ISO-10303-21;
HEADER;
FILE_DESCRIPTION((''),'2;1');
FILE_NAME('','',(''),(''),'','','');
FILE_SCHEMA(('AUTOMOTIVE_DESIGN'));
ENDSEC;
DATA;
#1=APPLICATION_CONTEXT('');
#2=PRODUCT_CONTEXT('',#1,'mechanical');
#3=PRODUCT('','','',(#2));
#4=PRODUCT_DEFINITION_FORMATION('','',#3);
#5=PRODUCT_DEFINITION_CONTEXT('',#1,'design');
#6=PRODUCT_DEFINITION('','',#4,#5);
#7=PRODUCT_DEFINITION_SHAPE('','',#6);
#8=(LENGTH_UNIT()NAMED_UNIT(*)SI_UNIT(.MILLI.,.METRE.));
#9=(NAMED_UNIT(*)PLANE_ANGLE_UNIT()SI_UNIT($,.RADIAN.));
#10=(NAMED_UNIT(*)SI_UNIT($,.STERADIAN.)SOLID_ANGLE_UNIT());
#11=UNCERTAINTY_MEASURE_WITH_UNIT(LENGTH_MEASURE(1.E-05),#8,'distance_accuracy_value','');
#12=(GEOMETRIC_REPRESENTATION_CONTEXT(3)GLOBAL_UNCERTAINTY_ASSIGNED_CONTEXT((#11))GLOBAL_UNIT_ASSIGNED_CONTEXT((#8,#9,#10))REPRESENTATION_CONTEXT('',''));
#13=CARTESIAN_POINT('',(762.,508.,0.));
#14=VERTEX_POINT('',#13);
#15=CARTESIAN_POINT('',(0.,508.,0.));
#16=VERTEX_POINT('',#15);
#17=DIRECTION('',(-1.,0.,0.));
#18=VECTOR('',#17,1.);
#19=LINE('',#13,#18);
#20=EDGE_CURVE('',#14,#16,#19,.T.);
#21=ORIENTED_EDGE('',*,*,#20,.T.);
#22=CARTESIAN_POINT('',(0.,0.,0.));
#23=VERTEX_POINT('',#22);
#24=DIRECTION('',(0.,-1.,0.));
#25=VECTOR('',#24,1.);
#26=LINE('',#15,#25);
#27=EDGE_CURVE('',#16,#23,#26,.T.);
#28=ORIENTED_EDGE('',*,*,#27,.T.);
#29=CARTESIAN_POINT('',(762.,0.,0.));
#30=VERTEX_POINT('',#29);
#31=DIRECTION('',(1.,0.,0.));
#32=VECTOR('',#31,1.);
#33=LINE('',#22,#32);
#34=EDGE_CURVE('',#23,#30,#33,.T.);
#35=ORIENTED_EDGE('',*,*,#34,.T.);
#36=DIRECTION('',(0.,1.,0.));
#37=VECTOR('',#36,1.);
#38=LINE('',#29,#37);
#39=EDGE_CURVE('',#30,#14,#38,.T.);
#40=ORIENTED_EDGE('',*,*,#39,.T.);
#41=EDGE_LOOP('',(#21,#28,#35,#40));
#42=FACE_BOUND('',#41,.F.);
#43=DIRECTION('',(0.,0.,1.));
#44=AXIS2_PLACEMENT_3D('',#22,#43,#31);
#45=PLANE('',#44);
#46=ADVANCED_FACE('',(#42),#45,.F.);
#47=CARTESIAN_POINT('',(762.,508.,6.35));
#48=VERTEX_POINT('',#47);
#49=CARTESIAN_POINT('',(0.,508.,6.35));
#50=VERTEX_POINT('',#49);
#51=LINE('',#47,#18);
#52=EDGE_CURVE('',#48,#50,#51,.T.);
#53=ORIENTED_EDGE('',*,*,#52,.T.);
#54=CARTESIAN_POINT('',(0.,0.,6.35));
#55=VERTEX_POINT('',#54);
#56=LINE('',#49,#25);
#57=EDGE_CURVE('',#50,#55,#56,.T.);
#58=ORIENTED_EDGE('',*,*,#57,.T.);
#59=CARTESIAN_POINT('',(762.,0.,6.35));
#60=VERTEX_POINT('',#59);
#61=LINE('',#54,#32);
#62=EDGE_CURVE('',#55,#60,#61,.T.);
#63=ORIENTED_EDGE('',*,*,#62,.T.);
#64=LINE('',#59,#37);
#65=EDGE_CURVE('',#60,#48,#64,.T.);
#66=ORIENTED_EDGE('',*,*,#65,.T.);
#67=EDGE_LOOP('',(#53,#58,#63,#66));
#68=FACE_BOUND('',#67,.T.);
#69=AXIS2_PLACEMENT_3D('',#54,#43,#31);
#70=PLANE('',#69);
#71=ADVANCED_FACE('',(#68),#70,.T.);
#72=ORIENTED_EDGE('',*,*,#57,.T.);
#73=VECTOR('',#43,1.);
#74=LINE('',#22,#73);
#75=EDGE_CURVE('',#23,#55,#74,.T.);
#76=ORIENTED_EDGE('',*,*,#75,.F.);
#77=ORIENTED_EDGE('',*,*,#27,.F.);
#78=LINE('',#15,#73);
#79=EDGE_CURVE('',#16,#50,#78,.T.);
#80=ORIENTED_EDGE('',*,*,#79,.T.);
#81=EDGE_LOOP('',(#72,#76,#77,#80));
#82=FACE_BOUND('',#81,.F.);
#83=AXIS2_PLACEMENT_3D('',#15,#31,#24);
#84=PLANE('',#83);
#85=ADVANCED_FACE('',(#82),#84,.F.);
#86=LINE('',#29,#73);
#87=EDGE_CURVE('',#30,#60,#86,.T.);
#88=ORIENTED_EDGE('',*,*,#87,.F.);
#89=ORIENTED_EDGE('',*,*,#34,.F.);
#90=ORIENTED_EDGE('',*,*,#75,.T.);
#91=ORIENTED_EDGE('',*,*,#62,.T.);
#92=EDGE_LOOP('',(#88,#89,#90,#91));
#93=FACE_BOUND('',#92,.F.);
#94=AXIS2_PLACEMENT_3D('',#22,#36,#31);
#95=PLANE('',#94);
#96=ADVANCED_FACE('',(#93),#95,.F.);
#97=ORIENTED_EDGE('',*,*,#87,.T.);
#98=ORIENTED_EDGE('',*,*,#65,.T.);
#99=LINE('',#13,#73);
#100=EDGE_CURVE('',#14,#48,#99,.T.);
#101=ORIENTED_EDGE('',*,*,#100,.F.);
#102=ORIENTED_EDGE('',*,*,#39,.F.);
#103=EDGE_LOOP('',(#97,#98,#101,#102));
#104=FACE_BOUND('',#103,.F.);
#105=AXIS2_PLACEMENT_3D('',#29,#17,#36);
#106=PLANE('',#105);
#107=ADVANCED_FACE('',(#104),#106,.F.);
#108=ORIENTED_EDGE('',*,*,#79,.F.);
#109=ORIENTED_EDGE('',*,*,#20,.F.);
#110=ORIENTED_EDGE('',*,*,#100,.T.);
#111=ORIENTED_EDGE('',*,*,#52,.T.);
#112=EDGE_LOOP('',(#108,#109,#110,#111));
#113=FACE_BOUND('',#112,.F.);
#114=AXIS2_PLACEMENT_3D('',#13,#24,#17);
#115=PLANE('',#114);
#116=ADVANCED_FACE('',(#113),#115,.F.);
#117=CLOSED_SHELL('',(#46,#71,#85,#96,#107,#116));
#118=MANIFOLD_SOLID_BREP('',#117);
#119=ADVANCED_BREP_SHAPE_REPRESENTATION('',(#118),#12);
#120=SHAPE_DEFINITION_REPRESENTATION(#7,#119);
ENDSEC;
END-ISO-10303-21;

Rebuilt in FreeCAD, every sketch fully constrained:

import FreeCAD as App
import Part
import Sketcher

V = App.Vector
Q = App.Units.Quantity


def add_polygon(sketch, points):
    """Adds a closed chain of lines whose ends are joined by coincident constraints."""
    first, n = sketch.GeometryCount, len(points)
    for a, b in zip(points, points[1:] + points[:1]):
        sketch.addGeometry(Part.LineSegment(App.Vector(*a, 0), App.Vector(*b, 0)), False)
    for i in range(n):
        sketch.addConstraint(Sketcher.Constraint("Coincident", first + i, 2, first + (i + 1) % n, 1))

doc = App.newDocument("Part")
body = doc.addObject("PartDesign::Body", "Body")

# Sketch on XY plane
sketch1 = doc.addObject("Sketcher::SketchObject", "Sketch")
body.addObject(sketch1)
sketch1.AttachmentSupport = (doc.XY_Plane, [""])
sketch1.MapMode = "FlatFace"
add_polygon(sketch1, [(0, 508), (0, 0), (762, 0), (762, 508)])  # lines 0-3
sketch1.addConstraint([
    Sketcher.Constraint("Vertical", 0),
    Sketcher.Constraint("Horizontal", 1),
    Sketcher.Constraint("Vertical", 2),
    Sketcher.Constraint("Horizontal", 3),
    Sketcher.Constraint("Coincident", 0, 2, -1, 1),
    Sketcher.Constraint("DistanceX", 1, 1, 1, 2, Q("30 in")),
    Sketcher.Constraint("DistanceY", 0, 2, 0, 1, Q("20 in")),
])
pad1 = doc.addObject("PartDesign::Pad", "Pad")
body.addObject(pad1)
pad1.Profile = sketch1
pad1.Length = Q("0.25 in")

doc.recompute()
